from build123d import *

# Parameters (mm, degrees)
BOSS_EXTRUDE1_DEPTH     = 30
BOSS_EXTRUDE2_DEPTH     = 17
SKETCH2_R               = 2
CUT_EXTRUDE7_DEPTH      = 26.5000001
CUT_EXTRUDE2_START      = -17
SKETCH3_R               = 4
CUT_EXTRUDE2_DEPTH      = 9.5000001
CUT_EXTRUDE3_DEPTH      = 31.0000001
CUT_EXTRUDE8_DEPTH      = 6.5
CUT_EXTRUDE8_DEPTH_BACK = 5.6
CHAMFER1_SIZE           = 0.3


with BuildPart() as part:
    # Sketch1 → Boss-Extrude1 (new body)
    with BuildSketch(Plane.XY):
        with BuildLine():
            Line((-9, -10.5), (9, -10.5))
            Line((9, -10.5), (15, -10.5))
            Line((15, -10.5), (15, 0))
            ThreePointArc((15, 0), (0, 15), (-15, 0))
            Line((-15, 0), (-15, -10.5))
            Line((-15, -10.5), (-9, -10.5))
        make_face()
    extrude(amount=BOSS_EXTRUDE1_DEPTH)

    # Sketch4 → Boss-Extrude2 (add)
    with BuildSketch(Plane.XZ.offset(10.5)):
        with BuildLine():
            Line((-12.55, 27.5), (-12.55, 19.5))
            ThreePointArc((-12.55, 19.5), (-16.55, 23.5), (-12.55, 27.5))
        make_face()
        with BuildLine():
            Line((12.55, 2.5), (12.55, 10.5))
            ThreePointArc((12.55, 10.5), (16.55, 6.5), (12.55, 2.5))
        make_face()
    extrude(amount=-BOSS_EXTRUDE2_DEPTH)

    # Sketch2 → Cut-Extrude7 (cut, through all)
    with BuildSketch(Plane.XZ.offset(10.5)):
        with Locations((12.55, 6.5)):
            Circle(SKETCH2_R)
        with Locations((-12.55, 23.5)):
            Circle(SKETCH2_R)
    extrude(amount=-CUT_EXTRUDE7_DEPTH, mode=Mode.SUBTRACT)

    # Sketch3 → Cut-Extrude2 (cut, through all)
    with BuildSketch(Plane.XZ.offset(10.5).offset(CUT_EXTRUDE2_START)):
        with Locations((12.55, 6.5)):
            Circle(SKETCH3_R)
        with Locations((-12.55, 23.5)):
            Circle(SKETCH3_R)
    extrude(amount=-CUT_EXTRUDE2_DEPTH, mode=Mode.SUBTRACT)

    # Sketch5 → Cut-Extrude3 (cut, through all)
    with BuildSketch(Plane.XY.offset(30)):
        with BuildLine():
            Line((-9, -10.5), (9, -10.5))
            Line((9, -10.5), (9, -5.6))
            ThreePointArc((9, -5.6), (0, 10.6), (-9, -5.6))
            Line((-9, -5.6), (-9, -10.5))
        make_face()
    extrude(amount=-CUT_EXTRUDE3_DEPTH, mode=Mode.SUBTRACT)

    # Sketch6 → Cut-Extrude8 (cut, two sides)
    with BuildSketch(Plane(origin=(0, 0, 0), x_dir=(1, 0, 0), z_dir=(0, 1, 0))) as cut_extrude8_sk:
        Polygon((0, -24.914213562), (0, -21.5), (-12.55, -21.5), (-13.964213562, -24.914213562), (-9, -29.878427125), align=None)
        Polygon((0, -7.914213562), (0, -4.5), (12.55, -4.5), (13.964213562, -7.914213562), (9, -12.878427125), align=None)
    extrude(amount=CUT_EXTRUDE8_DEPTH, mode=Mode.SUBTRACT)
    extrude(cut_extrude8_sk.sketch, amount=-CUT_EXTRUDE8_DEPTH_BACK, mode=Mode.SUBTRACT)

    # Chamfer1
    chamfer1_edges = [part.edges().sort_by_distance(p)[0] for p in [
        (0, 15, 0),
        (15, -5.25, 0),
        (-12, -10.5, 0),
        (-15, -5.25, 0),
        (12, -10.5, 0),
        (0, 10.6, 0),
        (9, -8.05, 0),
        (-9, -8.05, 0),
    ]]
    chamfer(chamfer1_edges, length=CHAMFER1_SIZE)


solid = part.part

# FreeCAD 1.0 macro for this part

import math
import FreeCAD as App
import Part
import Sketcher
Q = App.Units.Quantity


def edges_at(feature, points):
    """Names of the edges that pass closest to the given points."""
    edges = feature.Shape.Edges
    near = lambda p: min(range(len(edges)), key=lambda i: edges[i].distToShape(Part.Vertex(*p))[0])
    return sorted({f"Edge{near(p) + 1}" for p in points})

doc = App.newDocument("Part")
body = doc.addObject("PartDesign::Body", "Body")

sketch1 = doc.addObject("Sketcher::SketchObject", "Sketch")
body.addObject(sketch1)
sketch1.AttachmentSupport = (doc.XY_Plane, [""])
sketch1.MapMode = "FlatFace"
sketch1.addGeometry(Part.LineSegment(App.Vector(15, -10, 0), App.Vector(15, 0, 0)), False)
sketch1.addGeometry(Part.ArcOfCircle(Part.Circle(App.Vector(0, 0, 0), App.Vector(0, 0, 1), 15), math.radians(0), math.radians(180)), False)
sketch1.addGeometry(Part.LineSegment(App.Vector(-15, 0, 0), App.Vector(-15, -10, 0)), False)
sketch1.addGeometry(Part.LineSegment(App.Vector(-15, -10, 0), App.Vector(15, -10, 0)), False)
sketch1.addConstraint(Sketcher.Constraint("Tangent", 0, 2, 1, 1))
sketch1.addConstraint(Sketcher.Constraint("Tangent", 1, 2, 2, 1))
sketch1.addConstraint(Sketcher.Constraint("Coincident", 2, 2, 3, 1))
sketch1.addConstraint(Sketcher.Constraint("Coincident", 3, 2, 0, 1))
sketch1.addConstraint(Sketcher.Constraint("Vertical", 0))
sketch1.addConstraint(Sketcher.Constraint("Vertical", 2))
sketch1.addConstraint(Sketcher.Constraint("Horizontal", 3))
sketch1.addConstraint(Sketcher.Constraint("Coincident", 1, 3, -1, 1))
sketch1.addConstraint(Sketcher.Constraint("Radius", 1, 15.0))
sketch1.addConstraint(Sketcher.Constraint("DistanceY", 0, 1, 0, 2, 10.5))
pad1 = doc.addObject("PartDesign::Pad", "Pad")
body.addObject(pad1)
pad1.Profile = sketch1
pad1.Length = 30

sketch2 = doc.addObject("Sketcher::SketchObject", "Sketch001")
body.addObject(sketch2)
sketch2.AttachmentSupport = (doc.XZ_Plane, [""])
sketch2.MapMode = "FlatFace"
sketch2.AttachmentOffset = App.Placement(App.Vector(0, 0, 10.5), App.Rotation())
sketch2.addGeometry(Part.LineSegment(App.Vector(-12.6, 19.5, 0), App.Vector(-12.6, 27.5, 0)), False)
sketch2.addGeometry(Part.ArcOfCircle(Part.Circle(App.Vector(-12.6, 23.5, 0), App.Vector(0, 0, 1), 4), math.radians(90), math.radians(270)), False)
sketch2.addGeometry(Part.LineSegment(App.Vector(12.6, 10.5, 0), App.Vector(12.6, 2.5, 0)), False)
sketch2.addGeometry(Part.ArcOfCircle(Part.Circle(App.Vector(12.6, 6.5, 0), App.Vector(0, 0, 1), 4), math.radians(-90), math.radians(90)), False)
sketch2.addConstraint(Sketcher.Constraint("Coincident", 0, 1, 1, 2))
sketch2.addConstraint(Sketcher.Constraint("Coincident", 1, 1, 0, 2))
sketch2.addConstraint(Sketcher.Constraint("Coincident", 2, 1, 3, 2))
sketch2.addConstraint(Sketcher.Constraint("Coincident", 3, 1, 2, 2))
sketch2.addConstraint(Sketcher.Constraint("Vertical", 0))
sketch2.addConstraint(Sketcher.Constraint("Vertical", 2))
sketch2.addConstraint(Sketcher.Constraint("Equal", 1, 3))
sketch2.addConstraint(Sketcher.Constraint("Vertical", 1, 3, 0, 1))
sketch2.addConstraint(Sketcher.Constraint("Vertical", 3, 3, 2, 1))
sketch2.addConstraint(Sketcher.Constraint("Radius", 1, 4.0))
sketch2.addConstraint(Sketcher.Constraint("DistanceY", 3, 3, 1, 3, 17.0))
sketch2.addConstraint(Sketcher.Constraint("DistanceY", -1, 1, 1, 3, 23.5))
sketch2.addConstraint(Sketcher.Constraint("DistanceX", 1, 3, 3, 3, 25.1))
sketch2.addConstraint(Sketcher.Constraint("DistanceX", 1, 3, -1, 1, 12.55))
pad2 = doc.addObject("PartDesign::Pad", "Pad001")
body.addObject(pad2)
pad2.Profile = sketch2
pad2.Length = 17
pad2.Reversed = True

sketch3 = doc.addObject("Sketcher::SketchObject", "Sketch002")
body.addObject(sketch3)
sketch3.AttachmentSupport = (doc.XZ_Plane, [""])
sketch3.MapMode = "FlatFace"
sketch3.AttachmentOffset = App.Placement(App.Vector(0, 0, 10.5), App.Rotation())
sketch3.addGeometry(Part.Circle(App.Vector(12.6, 6.5, 0), App.Vector(0, 0, 1), 2), False)
sketch3.addGeometry(Part.Circle(App.Vector(-12.6, 23.5, 0), App.Vector(0, 0, 1), 2), False)
sketch3.addConstraint(Sketcher.Constraint("Equal", 0, 1))
sketch3.addConstraint(Sketcher.Constraint("Diameter", 0, 4.0))
sketch3.addConstraint(Sketcher.Constraint("DistanceY", 0, 3, 1, 3, 17.0))
sketch3.addConstraint(Sketcher.Constraint("DistanceY", -1, 1, 0, 3, 6.5))
sketch3.addConstraint(Sketcher.Constraint("DistanceX", 1, 3, 0, 3, 25.1))
sketch3.addConstraint(Sketcher.Constraint("DistanceX", -1, 1, 0, 3, 12.55))
pocket1 = doc.addObject("PartDesign::Pocket", "Pocket")
body.addObject(pocket1)
pocket1.Profile = sketch3
pocket1.Type = "ThroughAll"

sketch4 = doc.addObject("Sketcher::SketchObject", "Sketch003")
body.addObject(sketch4)
sketch4.AttachmentSupport = (doc.XZ_Plane, [""])
sketch4.MapMode = "FlatFace"
sketch4.AttachmentOffset = App.Placement(App.Vector(0, 0, -6.5), App.Rotation())
sketch4.addGeometry(Part.Circle(App.Vector(12.6, 6.5, 0), App.Vector(0, 0, 1), 4), False)
sketch4.addGeometry(Part.Circle(App.Vector(-12.6, 23.5, 0), App.Vector(0, 0, 1), 4), False)
sketch4.addConstraint(Sketcher.Constraint("Equal", 0, 1))
sketch4.addConstraint(Sketcher.Constraint("Diameter", 0, 8.0))
sketch4.addConstraint(Sketcher.Constraint("DistanceY", 0, 3, 1, 3, 17.0))
sketch4.addConstraint(Sketcher.Constraint("DistanceY", -1, 1, 0, 3, 6.5))
sketch4.addConstraint(Sketcher.Constraint("DistanceX", 1, 3, 0, 3, 25.1))
sketch4.addConstraint(Sketcher.Constraint("DistanceX", -1, 1, 0, 3, 12.55))
pocket2 = doc.addObject("PartDesign::Pocket", "Pocket001")
body.addObject(pocket2)
pocket2.Profile = sketch4
pocket2.Type = "ThroughAll"

sketch5 = doc.addObject("Sketcher::SketchObject", "Sketch004")
body.addObject(sketch5)
sketch5.AttachmentSupport = (doc.XY_Plane, [""])
sketch5.MapMode = "FlatFace"
sketch5.AttachmentOffset = App.Placement(App.Vector(0, 0, 30), App.Rotation())
sketch5.addGeometry(Part.LineSegment(App.Vector(-9, -10.5, 0), App.Vector(9, -10.5, 0)), False)
sketch5.addGeometry(Part.LineSegment(App.Vector(9, -10.5, 0), App.Vector(9, -5.6, 0)), False)
sketch5.addGeometry(Part.ArcOfCircle(Part.Circle(App.Vector(0, 0, 0), App.Vector(0, 0, 1), 10.6), math.radians(-32), math.radians(212)), False)
sketch5.addGeometry(Part.LineSegment(App.Vector(-9, -5.6, 0), App.Vector(-9, -10.5, 0)), False)
sketch5.addConstraint(Sketcher.Constraint("Coincident", 0, 2, 1, 1))
sketch5.addConstraint(Sketcher.Constraint("Coincident", 1, 2, 2, 1))
sketch5.addConstraint(Sketcher.Constraint("Coincident", 2, 2, 3, 1))
sketch5.addConstraint(Sketcher.Constraint("Coincident", 3, 2, 0, 1))
sketch5.addConstraint(Sketcher.Constraint("Horizontal", 0))
sketch5.addConstraint(Sketcher.Constraint("Vertical", 1))
sketch5.addConstraint(Sketcher.Constraint("Vertical", 3))
sketch5.addConstraint(Sketcher.Constraint("Coincident", 2, 3, -1, 1))
sketch5.addConstraint(Sketcher.Constraint("Horizontal", 1, 2, 2, 2))
sketch5.addConstraint(Sketcher.Constraint("Radius", 2, 10.6))
sketch5.addConstraint(Sketcher.Constraint("DistanceX", 0, 1, 0, 2, 18.0))
sketch5.addConstraint(Sketcher.Constraint("DistanceY", 1, 1, 1, 2, 4.9))
pocket3 = doc.addObject("PartDesign::Pocket", "Pocket002")
body.addObject(pocket3)
pocket3.Profile = sketch5
pocket3.Type = "ThroughAll"

sketch6 = doc.addObject("Sketcher::SketchObject", "Sketch005")
body.addObject(sketch6)
sketch6.AttachmentSupport = (doc.XZ_Plane, [""])
sketch6.MapMode = "FlatFace"
sketch6.addGeometry(Part.LineSegment(App.Vector(0, 24.9, 0), App.Vector(0, 21.5, 0)), False)
sketch6.addGeometry(Part.LineSegment(App.Vector(0, 21.5, 0), App.Vector(-12.6, 21.5, 0)), False)
sketch6.addGeometry(Part.LineSegment(App.Vector(-12.6, 21.5, 0), App.Vector(-14, 24.9, 0)), False)
sketch6.addGeometry(Part.LineSegment(App.Vector(-14, 24.9, 0), App.Vector(-9, 29.9, 0)), False)
sketch6.addGeometry(Part.LineSegment(App.Vector(-9, 29.9, 0), App.Vector(0, 24.9, 0)), False)
sketch6.addGeometry(Part.LineSegment(App.Vector(0, 4.5, 0), App.Vector(0, 7.9, 0)), False)
sketch6.addGeometry(Part.LineSegment(App.Vector(0, 7.9, 0), App.Vector(9, 12.9, 0)), False)
sketch6.addGeometry(Part.LineSegment(App.Vector(9, 12.9, 0), App.Vector(14, 7.9, 0)), False)
sketch6.addGeometry(Part.LineSegment(App.Vector(14, 7.9, 0), App.Vector(12.6, 4.5, 0)), False)
sketch6.addGeometry(Part.LineSegment(App.Vector(12.6, 4.5, 0), App.Vector(0, 4.5, 0)), False)
sketch6.addConstraint(Sketcher.Constraint("Coincident", 0, 2, 1, 1))
sketch6.addConstraint(Sketcher.Constraint("Coincident", 1, 2, 2, 1))
sketch6.addConstraint(Sketcher.Constraint("Coincident", 2, 2, 3, 1))
sketch6.addConstraint(Sketcher.Constraint("Coincident", 3, 2, 4, 1))
sketch6.addConstraint(Sketcher.Constraint("Coincident", 4, 2, 0, 1))
sketch6.addConstraint(Sketcher.Constraint("Coincident", 5, 2, 6, 1))
sketch6.addConstraint(Sketcher.Constraint("Coincident", 6, 2, 7, 1))
sketch6.addConstraint(Sketcher.Constraint("Coincident", 7, 2, 8, 1))
sketch6.addConstraint(Sketcher.Constraint("Coincident", 8, 2, 9, 1))
sketch6.addConstraint(Sketcher.Constraint("Coincident", 9, 2, 5, 1))
sketch6.addConstraint(Sketcher.Constraint("Vertical", 0))
sketch6.addConstraint(Sketcher.Constraint("Horizontal", 1))
sketch6.addConstraint(Sketcher.Constraint("Vertical", 5))
sketch6.addConstraint(Sketcher.Constraint("Horizontal", 9))
sketch6.addConstraint(Sketcher.Constraint("PointOnObject", 0, 2, -2))
sketch6.addConstraint(Sketcher.Constraint("PointOnObject", 5, 2, -2))
sketch6.addConstraint(Sketcher.Constraint("Perpendicular", 3, 7))
sketch6.addConstraint(Sketcher.Constraint("Horizontal", 2, 2, 4, 2))
sketch6.addConstraint(Sketcher.Constraint("Horizontal", 5, 2, 7, 2))
sketch6.addConstraint(Sketcher.Constraint("Equal", 1, 9))
sketch6.addConstraint(Sketcher.Constraint("Equal", 0, 5))
sketch6.addConstraint(Sketcher.Constraint("Equal", 4, 6))
sketch6.addConstraint(Sketcher.Constraint("Equal", 3, 7))
sketch6.addConstraint(Sketcher.Constraint("Equal", 2, 8))
sketch6.addConstraint(Sketcher.Constraint("DistanceX", 3, 2, -1, 1, 9.0))
sketch6.addConstraint(Sketcher.Constraint("Angle", 2, Q("112.5 deg")))
sketch6.addConstraint(Sketcher.Constraint("DistanceY", 5, 2, 4, 2, 17.0))
sketch6.addConstraint(Sketcher.Constraint("DistanceX", 1, 2, 1, 1, 12.55))
sketch6.addConstraint(Sketcher.Constraint("DistanceY", -1, 1, 0, 2, 21.5))
sketch6.addConstraint(Sketcher.Constraint("Distance", 4, 10.278298))
pocket4 = doc.addObject("PartDesign::Pocket", "Pocket003")
body.addObject(pocket4)
pocket4.Profile = sketch6
pocket4.Type = "TwoLengths"
pocket4.Length = 6.5
pocket4.Length2 = 5.6
doc.recompute()

chamfer = doc.addObject("PartDesign::Chamfer", "Chamfer")
body.addObject(chamfer)
chamfer.Base = (pocket4, edges_at(pocket4, [
    (0, 15, 0),
    (15, -5.25, 0),
    (-12, -10.5, 0),
    (-15, -5.25, 0),
    (12, -10.5, 0),
    (0, 10.6, 0),
    (9, -8.05, 0),
    (-9, -8.05, 0),
]))
chamfer.Size = 0.3

doc.recompute()
